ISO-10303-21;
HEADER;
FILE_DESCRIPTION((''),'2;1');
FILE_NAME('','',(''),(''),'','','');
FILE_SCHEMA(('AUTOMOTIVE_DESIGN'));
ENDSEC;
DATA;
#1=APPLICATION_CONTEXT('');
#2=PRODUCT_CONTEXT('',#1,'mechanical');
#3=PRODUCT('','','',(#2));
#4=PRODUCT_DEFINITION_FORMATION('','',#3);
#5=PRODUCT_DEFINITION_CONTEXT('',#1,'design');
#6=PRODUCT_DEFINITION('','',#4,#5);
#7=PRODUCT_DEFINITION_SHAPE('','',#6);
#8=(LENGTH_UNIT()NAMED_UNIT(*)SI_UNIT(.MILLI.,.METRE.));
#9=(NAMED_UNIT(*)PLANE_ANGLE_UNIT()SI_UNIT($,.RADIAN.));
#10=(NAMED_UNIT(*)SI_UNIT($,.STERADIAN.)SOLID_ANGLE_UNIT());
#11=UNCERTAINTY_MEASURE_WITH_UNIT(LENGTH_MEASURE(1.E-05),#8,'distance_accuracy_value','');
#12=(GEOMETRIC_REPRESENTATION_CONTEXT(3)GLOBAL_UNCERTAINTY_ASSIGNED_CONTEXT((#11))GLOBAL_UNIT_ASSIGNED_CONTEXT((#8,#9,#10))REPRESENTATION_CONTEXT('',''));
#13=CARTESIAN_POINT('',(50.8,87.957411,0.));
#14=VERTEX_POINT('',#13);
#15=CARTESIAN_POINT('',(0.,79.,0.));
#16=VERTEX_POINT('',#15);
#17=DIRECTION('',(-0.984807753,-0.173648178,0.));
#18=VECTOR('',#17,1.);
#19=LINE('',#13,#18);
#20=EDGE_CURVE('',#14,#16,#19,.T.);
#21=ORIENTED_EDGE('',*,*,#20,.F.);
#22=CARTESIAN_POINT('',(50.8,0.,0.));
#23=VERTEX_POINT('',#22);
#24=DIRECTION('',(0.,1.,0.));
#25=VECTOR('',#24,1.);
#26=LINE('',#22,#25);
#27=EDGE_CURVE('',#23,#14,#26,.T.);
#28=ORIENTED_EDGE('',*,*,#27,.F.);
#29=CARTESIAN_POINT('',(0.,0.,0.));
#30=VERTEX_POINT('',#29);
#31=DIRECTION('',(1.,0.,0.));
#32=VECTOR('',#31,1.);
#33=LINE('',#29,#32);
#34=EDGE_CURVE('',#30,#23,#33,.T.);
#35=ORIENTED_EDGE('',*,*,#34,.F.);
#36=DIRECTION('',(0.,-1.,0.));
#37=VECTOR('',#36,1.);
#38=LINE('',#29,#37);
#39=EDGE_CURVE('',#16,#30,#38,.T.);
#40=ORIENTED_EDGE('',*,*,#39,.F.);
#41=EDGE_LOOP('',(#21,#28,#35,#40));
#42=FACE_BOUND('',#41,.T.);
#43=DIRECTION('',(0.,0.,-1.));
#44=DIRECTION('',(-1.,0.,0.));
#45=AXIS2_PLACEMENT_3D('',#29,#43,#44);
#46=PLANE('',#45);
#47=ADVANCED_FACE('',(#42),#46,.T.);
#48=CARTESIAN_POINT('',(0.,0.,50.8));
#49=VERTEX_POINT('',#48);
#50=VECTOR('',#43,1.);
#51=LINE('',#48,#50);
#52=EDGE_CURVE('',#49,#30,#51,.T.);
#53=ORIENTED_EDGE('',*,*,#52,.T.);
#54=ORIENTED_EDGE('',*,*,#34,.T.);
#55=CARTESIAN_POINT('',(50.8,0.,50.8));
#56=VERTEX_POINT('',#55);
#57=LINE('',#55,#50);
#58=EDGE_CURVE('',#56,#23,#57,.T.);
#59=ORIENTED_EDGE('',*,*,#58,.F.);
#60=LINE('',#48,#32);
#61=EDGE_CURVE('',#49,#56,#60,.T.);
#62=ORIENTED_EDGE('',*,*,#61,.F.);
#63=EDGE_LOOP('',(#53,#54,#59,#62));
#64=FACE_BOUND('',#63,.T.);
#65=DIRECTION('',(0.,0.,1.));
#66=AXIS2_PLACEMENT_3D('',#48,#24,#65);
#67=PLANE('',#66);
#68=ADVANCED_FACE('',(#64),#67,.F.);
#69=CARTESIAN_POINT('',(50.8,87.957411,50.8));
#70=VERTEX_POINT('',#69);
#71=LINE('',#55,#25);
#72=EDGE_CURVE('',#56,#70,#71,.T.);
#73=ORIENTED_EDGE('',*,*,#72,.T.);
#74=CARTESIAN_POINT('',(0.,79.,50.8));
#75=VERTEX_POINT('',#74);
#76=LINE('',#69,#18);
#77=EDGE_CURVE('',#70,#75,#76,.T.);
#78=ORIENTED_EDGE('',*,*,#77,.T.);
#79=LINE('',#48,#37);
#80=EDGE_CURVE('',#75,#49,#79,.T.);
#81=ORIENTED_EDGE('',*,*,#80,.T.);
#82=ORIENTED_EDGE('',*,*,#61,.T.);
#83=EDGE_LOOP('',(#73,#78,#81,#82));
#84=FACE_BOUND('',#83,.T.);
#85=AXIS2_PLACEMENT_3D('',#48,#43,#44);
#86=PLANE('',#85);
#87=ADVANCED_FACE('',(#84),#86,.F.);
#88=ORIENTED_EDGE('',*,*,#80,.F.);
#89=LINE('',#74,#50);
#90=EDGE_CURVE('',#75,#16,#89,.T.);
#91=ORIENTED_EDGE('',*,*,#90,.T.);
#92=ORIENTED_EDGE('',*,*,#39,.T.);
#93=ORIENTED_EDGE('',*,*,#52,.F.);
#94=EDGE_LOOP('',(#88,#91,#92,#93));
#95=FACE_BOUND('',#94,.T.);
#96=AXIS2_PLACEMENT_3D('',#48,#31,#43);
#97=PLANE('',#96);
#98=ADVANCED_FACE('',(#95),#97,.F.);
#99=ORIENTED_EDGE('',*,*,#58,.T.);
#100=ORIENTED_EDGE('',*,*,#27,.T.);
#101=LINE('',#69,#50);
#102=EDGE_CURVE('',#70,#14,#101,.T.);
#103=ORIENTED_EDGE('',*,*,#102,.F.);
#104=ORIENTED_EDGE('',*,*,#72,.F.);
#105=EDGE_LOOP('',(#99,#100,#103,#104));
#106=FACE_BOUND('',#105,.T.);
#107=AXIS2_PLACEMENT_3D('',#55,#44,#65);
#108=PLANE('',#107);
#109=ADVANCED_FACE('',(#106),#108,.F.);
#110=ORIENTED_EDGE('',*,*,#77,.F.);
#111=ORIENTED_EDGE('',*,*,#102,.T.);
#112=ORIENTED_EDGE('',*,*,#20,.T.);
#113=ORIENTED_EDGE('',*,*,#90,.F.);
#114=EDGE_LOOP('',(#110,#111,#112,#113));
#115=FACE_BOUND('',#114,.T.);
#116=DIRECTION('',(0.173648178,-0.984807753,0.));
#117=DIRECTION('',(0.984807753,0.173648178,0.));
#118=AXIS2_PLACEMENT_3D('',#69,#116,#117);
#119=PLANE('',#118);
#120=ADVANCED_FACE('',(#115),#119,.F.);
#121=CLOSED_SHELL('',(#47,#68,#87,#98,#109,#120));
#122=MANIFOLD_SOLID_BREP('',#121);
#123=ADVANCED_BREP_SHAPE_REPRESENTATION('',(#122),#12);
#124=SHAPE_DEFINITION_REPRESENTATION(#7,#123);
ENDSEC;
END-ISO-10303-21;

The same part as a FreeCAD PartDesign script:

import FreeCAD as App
import Part
import Sketcher
from FreeCAD import Vector
Q = App.Units.Quantity


def add_polygon(sketch, points):
    """Adds a closed chain of lines whose ends are joined by coincident constraints."""
    first, n = sketch.GeometryCount, len(points)
    for a, b in zip(points, points[1:] + points[:1]):
        sketch.addGeometry(Part.LineSegment(App.Vector(*a, 0), App.Vector(*b, 0)), False)
    for i in range(n):
        sketch.addConstraint(Sketcher.Constraint("Coincident", first + i, 2, first + (i + 1) % n, 1))

doc = App.newDocument("Part")
params = doc.addObject("Spreadsheet::Sheet", "Params")
for row, (alias, value) in enumerate([
    ("sketch1_height", "79 mm"),
    ("sketch1_width", "50.8 mm"),
    ("pad1_length", "50.8 mm"),
], start=1):
    params.set(f"A{row}", alias)
    params.set(f"B{row}", "=" + value)
    params.setAlias(f"B{row}", alias)

body = doc.addObject("PartDesign::Body", "Body")

sketch1 = doc.addObject("Sketcher::SketchObject", "Sketch")
body.addObject(sketch1)
sketch1.AttachmentSupport = (doc.XY_Plane, [""])
sketch1.MapMode = "FlatFace"
add_polygon(sketch1, [(51, 88), (0, 79), (0, 0), (51, 0)])
sketch1.addConstraint(Sketcher.Constraint("Vertical", 1))
sketch1.addConstraint(Sketcher.Constraint("Horizontal", 2))
sketch1.addConstraint(Sketcher.Constraint("Vertical", 3))
sketch1.addConstraint(Sketcher.Constraint("Coincident", 1, 2, -1, 1))
sketch1.addConstraint(Sketcher.Constraint("DistanceY", 1, 2, 1, 1, 79.0))
sketch1.addConstraint(Sketcher.Constraint("Angle", 0, Q("-170 deg")))
sketch1.addConstraint(Sketcher.Constraint("DistanceX", 2, 1, 2, 2, 50.8))
sketch1.setExpression("Constraints[8]", "Params.sketch1_height")
sketch1.setExpression("Constraints[10]", "Params.sketch1_width")
pad1 = doc.addObject("PartDesign::Pad", "Pad")
body.addObject(pad1)
pad1.Profile = sketch1
pad1.setExpression("Length", "Params.pad1_length")

doc.recompute()
